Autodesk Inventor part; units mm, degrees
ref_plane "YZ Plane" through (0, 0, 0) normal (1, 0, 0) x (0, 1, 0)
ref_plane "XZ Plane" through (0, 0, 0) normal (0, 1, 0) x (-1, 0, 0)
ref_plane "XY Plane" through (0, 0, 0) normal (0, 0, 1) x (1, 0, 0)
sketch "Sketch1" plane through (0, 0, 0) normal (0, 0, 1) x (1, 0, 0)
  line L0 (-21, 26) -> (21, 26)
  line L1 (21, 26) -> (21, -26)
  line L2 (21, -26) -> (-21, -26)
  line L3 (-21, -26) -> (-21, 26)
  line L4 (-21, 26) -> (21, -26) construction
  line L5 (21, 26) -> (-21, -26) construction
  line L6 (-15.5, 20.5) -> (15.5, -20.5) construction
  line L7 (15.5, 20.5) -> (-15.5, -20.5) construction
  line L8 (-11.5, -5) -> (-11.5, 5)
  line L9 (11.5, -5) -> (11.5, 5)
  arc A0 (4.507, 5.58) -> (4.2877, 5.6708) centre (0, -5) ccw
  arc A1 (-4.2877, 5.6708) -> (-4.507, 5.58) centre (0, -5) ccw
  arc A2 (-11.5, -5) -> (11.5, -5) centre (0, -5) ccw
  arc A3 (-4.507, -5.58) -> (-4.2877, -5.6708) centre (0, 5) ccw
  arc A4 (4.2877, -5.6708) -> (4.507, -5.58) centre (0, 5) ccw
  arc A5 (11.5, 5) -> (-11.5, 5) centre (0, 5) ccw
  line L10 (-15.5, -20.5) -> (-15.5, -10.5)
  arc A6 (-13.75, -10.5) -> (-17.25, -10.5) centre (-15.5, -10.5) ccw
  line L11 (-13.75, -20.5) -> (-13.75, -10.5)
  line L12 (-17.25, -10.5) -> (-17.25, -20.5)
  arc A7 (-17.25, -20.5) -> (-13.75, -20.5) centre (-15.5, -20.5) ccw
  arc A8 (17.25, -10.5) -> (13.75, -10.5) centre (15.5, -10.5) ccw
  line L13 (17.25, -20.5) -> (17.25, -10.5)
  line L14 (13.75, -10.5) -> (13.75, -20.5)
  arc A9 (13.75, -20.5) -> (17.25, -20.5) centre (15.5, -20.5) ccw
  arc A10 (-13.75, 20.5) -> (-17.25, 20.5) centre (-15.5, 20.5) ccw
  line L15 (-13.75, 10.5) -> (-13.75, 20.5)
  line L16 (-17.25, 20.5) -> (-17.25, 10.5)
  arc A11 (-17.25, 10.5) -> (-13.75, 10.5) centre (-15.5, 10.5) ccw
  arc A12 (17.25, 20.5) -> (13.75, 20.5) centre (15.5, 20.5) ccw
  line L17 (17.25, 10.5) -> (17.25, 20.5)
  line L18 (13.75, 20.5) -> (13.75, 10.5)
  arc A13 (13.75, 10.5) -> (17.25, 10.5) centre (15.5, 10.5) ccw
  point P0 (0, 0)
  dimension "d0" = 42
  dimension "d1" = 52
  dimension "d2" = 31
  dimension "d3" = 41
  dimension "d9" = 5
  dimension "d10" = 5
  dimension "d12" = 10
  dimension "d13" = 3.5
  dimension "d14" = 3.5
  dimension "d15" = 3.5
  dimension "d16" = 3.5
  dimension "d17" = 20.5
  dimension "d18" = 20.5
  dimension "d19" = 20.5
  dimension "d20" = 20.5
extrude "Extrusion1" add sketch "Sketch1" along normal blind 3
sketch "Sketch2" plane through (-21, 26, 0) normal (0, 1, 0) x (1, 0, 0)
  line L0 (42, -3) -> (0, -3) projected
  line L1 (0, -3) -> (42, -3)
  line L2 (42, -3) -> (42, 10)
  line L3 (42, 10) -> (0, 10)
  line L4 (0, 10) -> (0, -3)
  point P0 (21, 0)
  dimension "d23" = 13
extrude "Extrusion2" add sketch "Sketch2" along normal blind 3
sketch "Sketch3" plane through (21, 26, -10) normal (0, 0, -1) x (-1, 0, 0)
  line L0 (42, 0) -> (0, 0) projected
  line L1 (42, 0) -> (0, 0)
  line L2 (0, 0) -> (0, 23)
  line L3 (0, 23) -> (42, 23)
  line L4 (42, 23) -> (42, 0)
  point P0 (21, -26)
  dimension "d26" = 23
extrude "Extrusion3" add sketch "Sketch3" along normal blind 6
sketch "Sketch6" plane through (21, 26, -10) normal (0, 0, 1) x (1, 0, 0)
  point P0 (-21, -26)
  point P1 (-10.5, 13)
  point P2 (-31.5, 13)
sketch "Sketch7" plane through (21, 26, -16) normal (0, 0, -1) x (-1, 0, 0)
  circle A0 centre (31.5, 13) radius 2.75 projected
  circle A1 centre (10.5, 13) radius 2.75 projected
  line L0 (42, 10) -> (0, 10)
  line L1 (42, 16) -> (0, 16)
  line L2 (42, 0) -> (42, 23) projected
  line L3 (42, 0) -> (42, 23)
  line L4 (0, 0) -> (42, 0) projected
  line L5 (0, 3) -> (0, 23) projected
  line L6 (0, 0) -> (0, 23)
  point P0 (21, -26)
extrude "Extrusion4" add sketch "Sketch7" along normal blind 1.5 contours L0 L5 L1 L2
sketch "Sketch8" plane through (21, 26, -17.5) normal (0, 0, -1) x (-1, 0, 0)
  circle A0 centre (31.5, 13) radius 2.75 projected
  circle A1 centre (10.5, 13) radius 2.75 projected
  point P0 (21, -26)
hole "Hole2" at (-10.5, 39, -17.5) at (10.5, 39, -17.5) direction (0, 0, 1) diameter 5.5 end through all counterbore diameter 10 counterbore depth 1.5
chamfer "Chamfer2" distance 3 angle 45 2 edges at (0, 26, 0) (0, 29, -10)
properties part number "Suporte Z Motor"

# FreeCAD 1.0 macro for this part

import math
import FreeCAD as App
import Part
import Sketcher
from FreeCAD import Vector


def edges_at(feature, points):
    """Names of the edges that pass closest to the given points."""
    edges = feature.Shape.Edges
    near = lambda p: min(range(len(edges)), key=lambda i: edges[i].distToShape(Part.Vertex(*p))[0])
    return sorted({f"Edge{near(p) + 1}" for p in points})


def add_polygon(sketch, points):
    """Adds a closed chain of lines whose ends are joined by coincident constraints."""
    first, n = sketch.GeometryCount, len(points)
    for a, b in zip(points, points[1:] + points[:1]):
        sketch.addGeometry(Part.LineSegment(App.Vector(*a, 0), App.Vector(*b, 0)), False)
    for i in range(n):
        sketch.addConstraint(Sketcher.Constraint("Coincident", first + i, 2, first + (i + 1) % n, 1))

doc = App.newDocument("Part")
body = doc.addObject("PartDesign::Body", "Body")

# Sketch on XY plane
sketch1 = body.newObject("Sketcher::SketchObject", "Sketch")
sketch1.AttachmentSupport = (doc.getObject("XY_Plane"), [""])
sketch1.MapMode = "FlatFace"
add_polygon(sketch1, [(21, 26), (-21, 26), (-21, -26), (21, -26)])  # lines 0-3
sketch1.addGeometry(Part.ArcOfCircle(Part.Circle(Vector(-15.5, -10.5, 0), Vector(0, 0, 1), 1.8), math.radians(0), math.radians(180)), False)  # 4
sketch1.addGeometry(Part.LineSegment(Vector(-13.8, -10.5, 0), Vector(-13.8, -20.5, 0)), False)  # 5
sketch1.addGeometry(Part.ArcOfCircle(Part.Circle(Vector(-15.5, -20.5, 0), Vector(0, 0, 1), 1.8), math.radians(180), math.radians(360)), False)  # 6
sketch1.addGeometry(Part.LineSegment(Vector(-17.2, -20.5, 0), Vector(-17.2, -10.5, 0)), False)  # 7
sketch1.addGeometry(Part.ArcOfCircle(Part.Circle(Vector(15.5, -10.5, 0), Vector(0, 0, 1), 1.8), math.radians(0), math.radians(180)), False)  # 8
sketch1.addGeometry(Part.LineSegment(Vector(17.2, -10.5, 0), Vector(17.2, -20.5, 0)), False)  # 9
sketch1.addGeometry(Part.ArcOfCircle(Part.Circle(Vector(15.5, -20.5, 0), Vector(0, 0, 1), 1.8), math.radians(180), math.radians(360)), False)  # 10
sketch1.addGeometry(Part.LineSegment(Vector(13.8, -20.5, 0), Vector(13.8, -10.5, 0)), False)  # 11
sketch1.addGeometry(Part.ArcOfCircle(Part.Circle(Vector(-15.5, 20.5, 0), Vector(0, 0, 1), 1.8), math.radians(0), math.radians(180)), False)  # 12
sketch1.addGeometry(Part.LineSegment(Vector(-13.8, 20.5, 0), Vector(-13.8, 10.5, 0)), False)  # 13
sketch1.addGeometry(Part.ArcOfCircle(Part.Circle(Vector(-15.5, 10.5, 0), Vector(0, 0, 1), 1.8), math.radians(180), math.radians(360)), False)  # 14
sketch1.addGeometry(Part.LineSegment(Vector(-17.2, 10.5, 0), Vector(-17.2, 20.5, 0)), False)  # 15
sketch1.addGeometry(Part.ArcOfCircle(Part.Circle(Vector(0, -5, 0), Vector(0, 0, 1), 11.5), math.radians(180), math.radians(360)), False)  # 16
sketch1.addGeometry(Part.LineSegment(Vector(-11.5, -5, 0), Vector(-11.5, 5, 0)), False)  # 17
sketch1.addGeometry(Part.ArcOfCircle(Part.Circle(Vector(0, 5, 0), Vector(0, 0, 1), 11.5), math.radians(0), math.radians(180)), False)  # 18
sketch1.addGeometry(Part.LineSegment(Vector(11.5, 5, 0), Vector(11.5, -5, 0)), False)  # 19
sketch1.addGeometry(Part.ArcOfCircle(Part.Circle(Vector(15.5, 20.5, 0), Vector(0, 0, 1), 1.8), math.radians(0), math.radians(180)), False)  # 20
sketch1.addGeometry(Part.LineSegment(Vector(17.2, 20.5, 0), Vector(17.2, 10.5, 0)), False)  # 21
sketch1.addGeometry(Part.ArcOfCircle(Part.Circle(Vector(15.5, 10.5, 0), Vector(0, 0, 1), 1.8), math.radians(180), math.radians(360)), False)  # 22
sketch1.addGeometry(Part.LineSegment(Vector(13.8, 10.5, 0), Vector(13.8, 20.5, 0)), False)  # 23
sketch1.addConstraint([
    Sketcher.Constraint("Tangent", 4, 1, 5, 1),
    Sketcher.Constraint("Tangent", 5, 2, 6, 2),
    Sketcher.Constraint("Tangent", 6, 1, 7, 1),
    Sketcher.Constraint("Tangent", 7, 2, 4, 2),
    Sketcher.Constraint("Tangent", 8, 1, 9, 1),
    Sketcher.Constraint("Tangent", 9, 2, 10, 2),
    Sketcher.Constraint("Tangent", 10, 1, 11, 1),
    Sketcher.Constraint("Tangent", 11, 2, 8, 2),
    Sketcher.Constraint("Tangent", 12, 1, 13, 1),
    Sketcher.Constraint("Tangent", 13, 2, 14, 2),
    Sketcher.Constraint("Tangent", 14, 1, 15, 1),
    Sketcher.Constraint("Tangent", 15, 2, 12, 2),
    Sketcher.Constraint("Tangent", 16, 1, 17, 1),
    Sketcher.Constraint("Tangent", 17, 2, 18, 2),
    Sketcher.Constraint("Tangent", 18, 1, 19, 1),
    Sketcher.Constraint("Tangent", 19, 2, 16, 2),
    Sketcher.Constraint("Tangent", 20, 1, 21, 1),
    Sketcher.Constraint("Tangent", 21, 2, 22, 2),
    Sketcher.Constraint("Tangent", 22, 1, 23, 1),
    Sketcher.Constraint("Tangent", 23, 2, 20, 2),
    Sketcher.Constraint("Horizontal", 0),
    Sketcher.Constraint("Vertical", 1),
    Sketcher.Constraint("Horizontal", 2),
    Sketcher.Constraint("Vertical", 3),
    Sketcher.Constraint("Vertical", 5),
    Sketcher.Constraint("Vertical", 7),
    Sketcher.Constraint("Vertical", 9),
    Sketcher.Constraint("Vertical", 11),
    Sketcher.Constraint("Vertical", 13),
    Sketcher.Constraint("Vertical", 15),
    Sketcher.Constraint("Vertical", 17),
    Sketcher.Constraint("Vertical", 19),
    Sketcher.Constraint("Vertical", 21),
    Sketcher.Constraint("Vertical", 23),
    Sketcher.Constraint("Equal", 6, 8),
    Sketcher.Constraint("Equal", 10, 12),
    Sketcher.Constraint("Equal", 14, 20),
    Sketcher.Constraint("Symmetric", 10, 3, 12, 3, -1, 1),
    Sketcher.Constraint("Symmetric", 16, 3, 18, 3, -1, 1),
    Sketcher.Constraint("Symmetric", 6, 3, 20, 3, -1, 1),
    Sketcher.Constraint("Symmetric", 0, 2, 2, 2, -1, 1),
    Sketcher.Constraint("Symmetric", 4, 3, 8, 3, -2),
    Sketcher.Constraint("Horizontal", 6, 3, 10, 3),
    Sketcher.Constraint("Horizontal", 14, 3, 22, 3),
    Sketcher.Constraint("Equal", 11, 13),
    Sketcher.Constraint("Equal", 15, 17),
    Sketcher.Constraint("DistanceX", 0, 2, 0, 1, 42.0),
    Sketcher.Constraint("DistanceY", 1, 2, 1, 1, 52.0),
    Sketcher.Constraint("DistanceY", 5, 2, 5, 1, 10.0),
    Sketcher.Constraint("Radius", 4, 1.75),
    Sketcher.Constraint("DistanceX", 4, 3, 8, 3, 31.0),
    Sketcher.Constraint("DistanceY", 4, 3, 12, 3, 31.0),
    Sketcher.Constraint("Radius", 16, 11.5),
])
pad1 = body.newObject("PartDesign::Pad", "Pad")
pad1.Profile = sketch1
pad1.Length = 3

# Sketch on XZ plane
sketch2 = body.newObject("Sketcher::SketchObject", "Sketch001")
sketch2.AttachmentSupport = (doc.getObject("XZ_Plane"), [""])
sketch2.MapMode = "FlatFace"
sketch2.AttachmentOffset = App.Placement(Vector(0, 0, -26), App.Rotation())
add_polygon(sketch2, [(-21, 3), (21, 3), (21, -10), (-21, -10)])  # lines 0-3
sketch2.addConstraint([
    Sketcher.Constraint("Horizontal", 0),
    Sketcher.Constraint("Vertical", 1),
    Sketcher.Constraint("Horizontal", 2),
    Sketcher.Constraint("Vertical", 3),
    Sketcher.Constraint("DistanceY", 1, 2, 1, 1, 13.0),
    Sketcher.Constraint("DistanceX", 0, 1, 0, 2, 42.0),
    Sketcher.Constraint("DistanceX", -1, 1, 0, 2, 21.0),
    Sketcher.Constraint("DistanceY", -1, 1, 0, 2, 3.0),
])
pad2 = body.newObject("PartDesign::Pad", "Pad001")
pad2.Profile = sketch2
pad2.Length = 3
pad2.Reversed = True

# Sketch on XY plane
sketch3 = body.newObject("Sketcher::SketchObject", "Sketch002")
sketch3.AttachmentSupport = (doc.getObject("XY_Plane"), [""])
sketch3.MapMode = "FlatFace"
sketch3.AttachmentOffset = App.Placement(Vector(0, 0, -10), App.Rotation())
add_polygon(sketch3, [(21, 26), (-21, 26), (-21, 49), (21, 49)])  # lines 0-3
sketch3.addConstraint([
    Sketcher.Constraint("Horizontal", 0),
    Sketcher.Constraint("Vertical", 1),
    Sketcher.Constraint("Horizontal", 2),
    Sketcher.Constraint("Vertical", 3),
    Sketcher.Constraint("DistanceY", 1, 1, 1, 2, 23.0),
    Sketcher.Constraint("DistanceX", 0, 2, 0, 1, 42.0),
    Sketcher.Constraint("DistanceX", 0, 2, -1, 1, 21.0),
    Sketcher.Constraint("DistanceY", -1, 1, 0, 2, 26.0),
])
pad3 = body.newObject("PartDesign::Pad", "Pad002")
pad3.Profile = sketch3
pad3.Length = 6
pad3.Reversed = True

# Sketch on XY plane
sketch4 = body.newObject("Sketcher::SketchObject", "Sketch003")
sketch4.AttachmentSupport = (doc.getObject("XY_Plane"), [""])
sketch4.MapMode = "FlatFace"
sketch4.AttachmentOffset = App.Placement(Vector(0, 0, -16), App.Rotation())
add_polygon(sketch4, [(21, 36), (-21, 36), (-21, 42), (21, 42)])  # lines 0-3
sketch4.addGeometry(Part.Circle(Vector(10.5, 39, 0), Vector(0, 0, 1), 2.8), False)  # 4
sketch4.addGeometry(Part.Circle(Vector(-10.5, 39, 0), Vector(0, 0, 1), 2.8), False)  # 5
sketch4.addConstraint([
    Sketcher.Constraint("Horizontal", 0),
    Sketcher.Constraint("Vertical", 1),
    Sketcher.Constraint("Horizontal", 2),
    Sketcher.Constraint("Vertical", 3),
    Sketcher.Constraint("Equal", 4, 5),
    Sketcher.Constraint("Symmetric", 4, 3, 5, 3, -2),
    Sketcher.Constraint("Diameter", 4, 5.5),
    Sketcher.Constraint("DistanceX", 0, 2, 0, 1, 42.0),
    Sketcher.Constraint("DistanceY", 1, 1, 1, 2, 6.0),
    Sketcher.Constraint("DistanceY", -1, 1, 4, 3, 39.0),
    Sketcher.Constraint("DistanceX", 0, 2, -1, 1, 21.0),
    Sketcher.Constraint("DistanceY", -1, 1, 0, 2, 36.0),
    Sketcher.Constraint("DistanceX", 5, 3, 4, 3, 21.0),
])
pad4 = body.newObject("PartDesign::Pad", "Pad003")
pad4.Profile = sketch4
pad4.Length = 1.5
pad4.Reversed = True

# Sketch on XY plane
sketch5 = body.newObject("Sketcher::SketchObject", "Sketch004")
sketch5.AttachmentSupport = (doc.getObject("XY_Plane"), [""])
sketch5.MapMode = "FlatFace"
sketch5.AttachmentOffset = App.Placement(Vector(0, 0, -17.5), App.Rotation())
sketch5.addGeometry([
    Part.Circle(Vector(-10.5, 39, 0), Vector(0, 0, 1), 2.8),
    Part.Circle(Vector(10.5, 39, 0), Vector(0, 0, 1), 2.8),
], False)
sketch5.addConstraint([
    Sketcher.Constraint("Equal", 0, 1),
    Sketcher.Constraint("Symmetric", 0, 3, 1, 3, -2),
    Sketcher.Constraint("Diameter", 0, 5.5),
    Sketcher.Constraint("DistanceY", -1, 1, 0, 3, 39.0),
    Sketcher.Constraint("DistanceX", 0, 3, 1, 3, 21.0),
])
doc.recompute()
hole = body.newObject("PartDesign::Hole", "Hole")
hole.Profile = sketch5
hole.ThreadType = "None"
hole.Diameter = 5.5
hole.DepthType = "ThroughAll"
hole.HoleCutType = "Counterbore"
hole.HoleCutDiameter = 10
hole.HoleCutDepth = 1.5
hole.Reversed = True
doc.recompute()

chamfer = body.newObject("PartDesign::Chamfer", "Chamfer")
chamfer.Base = (hole, edges_at(hole, [(0, 26, 0), (0, 29, -10)]))
chamfer.Size = 3

doc.recompute()
